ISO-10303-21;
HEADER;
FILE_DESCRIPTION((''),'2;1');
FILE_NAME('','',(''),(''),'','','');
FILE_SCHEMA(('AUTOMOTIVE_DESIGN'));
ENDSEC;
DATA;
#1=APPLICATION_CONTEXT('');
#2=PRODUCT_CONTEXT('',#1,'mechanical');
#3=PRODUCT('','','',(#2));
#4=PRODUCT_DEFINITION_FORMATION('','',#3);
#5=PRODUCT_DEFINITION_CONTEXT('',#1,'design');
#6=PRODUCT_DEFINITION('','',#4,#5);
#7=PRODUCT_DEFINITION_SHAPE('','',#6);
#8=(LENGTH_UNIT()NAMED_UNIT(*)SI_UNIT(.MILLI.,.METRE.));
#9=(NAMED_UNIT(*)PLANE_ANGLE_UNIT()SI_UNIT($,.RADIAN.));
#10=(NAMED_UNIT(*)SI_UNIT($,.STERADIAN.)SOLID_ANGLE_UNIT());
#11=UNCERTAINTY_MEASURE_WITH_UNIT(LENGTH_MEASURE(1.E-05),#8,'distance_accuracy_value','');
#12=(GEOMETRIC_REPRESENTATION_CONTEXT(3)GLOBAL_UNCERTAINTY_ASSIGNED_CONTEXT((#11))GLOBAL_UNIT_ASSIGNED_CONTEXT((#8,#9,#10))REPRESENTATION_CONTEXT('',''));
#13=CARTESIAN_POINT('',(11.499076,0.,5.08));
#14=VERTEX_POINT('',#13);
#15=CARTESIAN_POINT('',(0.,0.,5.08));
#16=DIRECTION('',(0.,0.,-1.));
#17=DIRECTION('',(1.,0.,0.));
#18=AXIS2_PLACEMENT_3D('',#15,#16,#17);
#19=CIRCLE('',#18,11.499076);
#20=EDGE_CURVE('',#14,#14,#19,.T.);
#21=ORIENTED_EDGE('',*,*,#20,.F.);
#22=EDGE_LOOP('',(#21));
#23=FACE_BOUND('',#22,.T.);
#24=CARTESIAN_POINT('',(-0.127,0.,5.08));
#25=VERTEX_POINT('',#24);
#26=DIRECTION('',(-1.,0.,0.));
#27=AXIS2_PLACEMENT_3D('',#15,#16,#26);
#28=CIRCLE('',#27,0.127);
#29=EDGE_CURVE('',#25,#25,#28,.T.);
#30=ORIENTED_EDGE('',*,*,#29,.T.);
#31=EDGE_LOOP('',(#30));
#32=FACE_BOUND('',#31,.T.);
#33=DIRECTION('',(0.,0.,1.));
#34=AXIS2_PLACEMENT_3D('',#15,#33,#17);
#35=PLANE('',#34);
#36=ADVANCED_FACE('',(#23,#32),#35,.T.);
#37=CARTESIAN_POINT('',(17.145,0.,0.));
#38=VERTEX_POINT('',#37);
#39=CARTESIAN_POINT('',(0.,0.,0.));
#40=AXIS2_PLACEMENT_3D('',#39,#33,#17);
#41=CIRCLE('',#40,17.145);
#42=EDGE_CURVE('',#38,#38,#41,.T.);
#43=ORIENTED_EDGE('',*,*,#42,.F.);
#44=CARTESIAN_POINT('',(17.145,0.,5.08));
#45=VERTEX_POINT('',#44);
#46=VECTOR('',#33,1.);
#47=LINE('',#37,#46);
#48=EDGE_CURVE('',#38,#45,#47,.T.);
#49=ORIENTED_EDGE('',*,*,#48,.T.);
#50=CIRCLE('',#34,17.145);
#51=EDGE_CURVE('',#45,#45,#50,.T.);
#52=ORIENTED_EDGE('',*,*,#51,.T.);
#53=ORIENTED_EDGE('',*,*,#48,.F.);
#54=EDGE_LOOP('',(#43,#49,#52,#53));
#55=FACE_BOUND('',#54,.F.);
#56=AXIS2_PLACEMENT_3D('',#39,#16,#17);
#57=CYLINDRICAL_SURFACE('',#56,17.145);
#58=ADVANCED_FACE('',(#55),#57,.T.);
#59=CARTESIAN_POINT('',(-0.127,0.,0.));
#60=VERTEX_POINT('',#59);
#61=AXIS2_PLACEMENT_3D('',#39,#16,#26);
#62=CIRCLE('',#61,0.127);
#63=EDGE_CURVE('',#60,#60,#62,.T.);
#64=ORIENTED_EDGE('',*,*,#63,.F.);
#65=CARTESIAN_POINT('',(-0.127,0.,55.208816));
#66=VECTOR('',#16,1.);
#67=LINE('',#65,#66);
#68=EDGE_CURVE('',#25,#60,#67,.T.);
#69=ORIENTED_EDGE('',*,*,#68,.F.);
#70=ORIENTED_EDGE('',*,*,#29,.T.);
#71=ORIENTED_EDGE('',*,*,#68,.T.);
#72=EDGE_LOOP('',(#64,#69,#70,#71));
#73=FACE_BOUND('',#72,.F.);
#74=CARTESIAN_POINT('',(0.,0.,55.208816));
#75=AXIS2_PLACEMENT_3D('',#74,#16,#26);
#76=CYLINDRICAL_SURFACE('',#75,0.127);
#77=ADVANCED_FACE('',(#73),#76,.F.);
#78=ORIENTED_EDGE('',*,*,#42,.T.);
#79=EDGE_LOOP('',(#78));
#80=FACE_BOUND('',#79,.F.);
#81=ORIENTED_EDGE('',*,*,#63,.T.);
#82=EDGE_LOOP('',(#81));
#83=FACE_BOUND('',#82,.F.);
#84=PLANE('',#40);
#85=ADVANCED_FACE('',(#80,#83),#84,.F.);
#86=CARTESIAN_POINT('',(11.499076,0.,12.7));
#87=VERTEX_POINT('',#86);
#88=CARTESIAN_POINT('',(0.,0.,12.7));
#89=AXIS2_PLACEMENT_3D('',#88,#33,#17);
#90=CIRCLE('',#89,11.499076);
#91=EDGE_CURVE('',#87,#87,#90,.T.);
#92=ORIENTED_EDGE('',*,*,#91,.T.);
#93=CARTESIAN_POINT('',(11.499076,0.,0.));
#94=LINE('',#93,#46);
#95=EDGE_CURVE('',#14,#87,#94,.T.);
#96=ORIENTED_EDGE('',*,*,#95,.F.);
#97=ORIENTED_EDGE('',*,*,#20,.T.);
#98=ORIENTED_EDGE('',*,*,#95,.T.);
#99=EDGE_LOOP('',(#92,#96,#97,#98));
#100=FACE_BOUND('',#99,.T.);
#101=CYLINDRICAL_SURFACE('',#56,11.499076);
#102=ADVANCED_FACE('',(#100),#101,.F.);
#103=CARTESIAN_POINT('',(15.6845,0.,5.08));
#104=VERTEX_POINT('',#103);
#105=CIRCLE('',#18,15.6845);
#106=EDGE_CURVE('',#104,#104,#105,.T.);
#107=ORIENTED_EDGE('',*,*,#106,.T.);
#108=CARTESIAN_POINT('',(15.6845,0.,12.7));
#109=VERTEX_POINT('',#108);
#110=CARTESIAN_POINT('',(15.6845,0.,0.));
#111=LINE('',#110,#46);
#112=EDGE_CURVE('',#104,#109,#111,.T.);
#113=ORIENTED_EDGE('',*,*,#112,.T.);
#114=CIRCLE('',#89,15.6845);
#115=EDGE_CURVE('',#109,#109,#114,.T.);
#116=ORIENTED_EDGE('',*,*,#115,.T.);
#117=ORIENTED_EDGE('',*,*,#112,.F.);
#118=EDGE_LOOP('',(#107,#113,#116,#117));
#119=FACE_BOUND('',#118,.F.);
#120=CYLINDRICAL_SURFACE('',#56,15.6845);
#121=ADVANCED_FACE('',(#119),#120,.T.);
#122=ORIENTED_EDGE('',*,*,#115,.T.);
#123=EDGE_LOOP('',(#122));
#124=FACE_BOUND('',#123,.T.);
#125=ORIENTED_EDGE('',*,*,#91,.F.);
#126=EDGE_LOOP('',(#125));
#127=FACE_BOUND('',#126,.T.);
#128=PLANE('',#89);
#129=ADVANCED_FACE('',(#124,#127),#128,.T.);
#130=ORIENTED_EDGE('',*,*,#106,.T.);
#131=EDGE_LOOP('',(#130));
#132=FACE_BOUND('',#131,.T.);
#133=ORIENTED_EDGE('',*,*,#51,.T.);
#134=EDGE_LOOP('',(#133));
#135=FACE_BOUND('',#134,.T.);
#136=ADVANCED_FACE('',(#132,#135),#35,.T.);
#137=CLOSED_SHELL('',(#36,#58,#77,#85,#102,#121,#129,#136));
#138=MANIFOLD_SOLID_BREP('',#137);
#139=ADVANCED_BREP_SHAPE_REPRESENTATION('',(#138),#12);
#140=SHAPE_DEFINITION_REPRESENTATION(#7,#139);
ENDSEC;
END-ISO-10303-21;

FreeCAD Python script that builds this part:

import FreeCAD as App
import Part
import Sketcher
Q = App.Units.Quantity

doc = App.newDocument("Part")
params = doc.addObject("Spreadsheet::Sheet", "Params")
for row, (alias, value) in enumerate([
    ("sketch1_diameter", "1.235 in"),
    ("pad1_length", "0.5 in"),
    ("sketch2_diameter", "1.35 in"),
    ("pad2_length", "0.2 in"),
    ("sketch3_diameter", "0.01 in"),
    ("hole_diameter", "0.01 in"),
], start=1):
    params.set(f"A{row}", alias)
    params.set(f"B{row}", "=" + value)
    params.setAlias(f"B{row}", alias)

body = doc.addObject("PartDesign::Body", "Body")

# Sketch on XY plane
sketch1 = doc.addObject("Sketcher::SketchObject", "Sketch")
body.addObject(sketch1)
sketch1.AttachmentSupport = (doc.XY_Plane, [""])
sketch1.MapMode = "FlatFace"
sketch1.addGeometry(Part.Circle(App.Vector(0, 0, 0), App.Vector(0, 0, 1), 16), False)
sketch1.addGeometry(Part.Circle(App.Vector(0, 0, 0), App.Vector(0, 0, 1), 11), False)
sketch1.addConstraint(Sketcher.Constraint("Coincident", 0, 3, -1, 1))
sketch1.addConstraint(Sketcher.Constraint("Coincident", 1, 3, -1, 1))
sketch1.addConstraint(Sketcher.Constraint("Diameter", 0, Q("1.235 in")))
sketch1.addConstraint(Sketcher.Constraint("Diameter", 1, 22.998152))
sketch1.setExpression("Constraints[2]", "Params.sketch1_diameter")
pad1 = doc.addObject("PartDesign::Pad", "Pad")
body.addObject(pad1)
pad1.Profile = sketch1
pad1.setExpression("Length", "Params.pad1_length")

# Sketch on XY plane
sketch2 = doc.addObject("Sketcher::SketchObject", "Sketch001")
body.addObject(sketch2)
sketch2.AttachmentSupport = (doc.XY_Plane, [""])
sketch2.MapMode = "FlatFace"
sketch2.addGeometry(Part.Circle(App.Vector(0, 0, 0), App.Vector(0, 0, 1), 17), False)
sketch2.addConstraint(Sketcher.Constraint("Coincident", 0, 3, -1, 1))
sketch2.addConstraint(Sketcher.Constraint("Diameter", 0, Q("1.35 in")))
sketch2.setExpression("Constraints[1]", "Params.sketch2_diameter")
pad2 = doc.addObject("PartDesign::Pad", "Pad001")
body.addObject(pad2)
pad2.Profile = sketch2
pad2.setExpression("Length", "Params.pad2_length")

# Sketch on XY plane
sketch3 = doc.addObject("Sketcher::SketchObject", "Sketch002")
body.addObject(sketch3)
sketch3.AttachmentSupport = (doc.XY_Plane, [""])
sketch3.MapMode = "FlatFace"
sketch3.AttachmentOffset = App.Placement(App.Vector(0, 0, 0.2 * 25.4), App.Rotation())
sketch3.addGeometry(Part.Circle(App.Vector(0, 0, 0), App.Vector(0, 0, 1), 0.13), False)
sketch3.addConstraint(Sketcher.Constraint("Coincident", 0, 3, -1, 1))
sketch3.addConstraint(Sketcher.Constraint("Diameter", 0, Q("0.01 in")))
sketch3.setExpression("Constraints[1]", "Params.sketch3_diameter")
doc.recompute()
hole = doc.addObject("PartDesign::Hole", "Hole")
body.addObject(hole)
hole.Profile = sketch3
hole.ThreadType = "None"
hole.setExpression("Diameter", "Params.hole_diameter")
hole.DepthType = "ThroughAll"

doc.recompute()
